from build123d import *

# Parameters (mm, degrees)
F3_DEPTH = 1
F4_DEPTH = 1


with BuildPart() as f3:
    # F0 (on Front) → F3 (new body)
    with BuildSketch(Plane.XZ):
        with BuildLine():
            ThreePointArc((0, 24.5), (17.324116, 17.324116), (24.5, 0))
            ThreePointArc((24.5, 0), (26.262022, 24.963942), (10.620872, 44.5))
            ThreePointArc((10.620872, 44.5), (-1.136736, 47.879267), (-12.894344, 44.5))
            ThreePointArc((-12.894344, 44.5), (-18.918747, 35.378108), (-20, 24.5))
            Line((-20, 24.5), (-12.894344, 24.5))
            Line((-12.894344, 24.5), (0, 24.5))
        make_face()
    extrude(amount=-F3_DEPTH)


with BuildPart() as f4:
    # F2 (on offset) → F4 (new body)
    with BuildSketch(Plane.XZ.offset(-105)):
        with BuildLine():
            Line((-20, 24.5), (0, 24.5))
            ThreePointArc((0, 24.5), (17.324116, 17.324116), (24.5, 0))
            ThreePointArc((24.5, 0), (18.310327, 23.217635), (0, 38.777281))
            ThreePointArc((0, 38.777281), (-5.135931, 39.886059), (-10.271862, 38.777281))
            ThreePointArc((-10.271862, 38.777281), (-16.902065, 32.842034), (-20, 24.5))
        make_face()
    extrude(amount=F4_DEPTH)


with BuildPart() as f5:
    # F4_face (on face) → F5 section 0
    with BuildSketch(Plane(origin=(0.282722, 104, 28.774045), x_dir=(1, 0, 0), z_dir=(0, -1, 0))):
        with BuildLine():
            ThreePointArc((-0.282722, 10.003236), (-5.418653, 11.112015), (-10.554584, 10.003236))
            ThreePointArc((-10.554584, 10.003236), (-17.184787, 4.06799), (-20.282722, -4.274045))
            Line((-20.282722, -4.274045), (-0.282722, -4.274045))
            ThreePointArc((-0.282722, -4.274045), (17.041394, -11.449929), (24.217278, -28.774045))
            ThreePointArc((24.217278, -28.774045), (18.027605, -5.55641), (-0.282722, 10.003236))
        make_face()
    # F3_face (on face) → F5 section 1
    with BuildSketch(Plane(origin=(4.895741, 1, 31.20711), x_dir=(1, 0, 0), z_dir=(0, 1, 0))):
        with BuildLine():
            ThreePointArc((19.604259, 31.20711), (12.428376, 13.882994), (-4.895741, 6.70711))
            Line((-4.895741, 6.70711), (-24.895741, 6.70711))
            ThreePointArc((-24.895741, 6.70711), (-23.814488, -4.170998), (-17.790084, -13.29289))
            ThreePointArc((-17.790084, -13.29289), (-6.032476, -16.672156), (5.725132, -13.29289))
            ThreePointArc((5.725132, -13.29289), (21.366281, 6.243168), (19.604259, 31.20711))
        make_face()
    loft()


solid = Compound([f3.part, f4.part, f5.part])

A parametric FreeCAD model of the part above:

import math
import FreeCAD as App
import Part
import Sketcher

doc = App.newDocument("Part")
params = doc.addObject("Spreadsheet::Sheet", "Params")
for row, (alias, value) in enumerate([
    ("sketch1_radius", "24.5 mm"),
    ("sketch1_width", "20 mm"),
    ("pad1_length", "1 mm"),
    ("sketch2_radius", "24.5 mm"),
    ("sketch2_width", "20 mm"),
    ("pad2_length", "1 mm"),
    ("sketch3_radius", "24.5 mm"),
    ("sketch3_width", "20 mm"),
    ("sketch4_radius", "24.499999 mm"),
    ("sketch4_width", "20 mm"),
], start=1):
    params.set(f"A{row}", alias)
    params.set(f"B{row}", "=" + value)
    params.setAlias(f"B{row}", alias)

body = doc.addObject("PartDesign::Body", "Body")

# Sketch on XZ plane
sketch1 = doc.addObject("Sketcher::SketchObject", "Sketch")
body.addObject(sketch1)
sketch1.AttachmentSupport = (doc.XZ_Plane, [""])
sketch1.MapMode = "FlatFace"
sketch1.addGeometry(Part.ArcOfCircle(Part.Circle(App.Vector(0, 0, 0), App.Vector(0, 0, 1), 25), math.radians(0), math.radians(90)), False)
sketch1.addGeometry(Part.ArcOfCircle(Part.Circle(App.Vector(-7, 15, 0), App.Vector(0, 0, 1), 34), math.radians(-25), math.radians(60)), False)
sketch1.addGeometry(Part.ArcOfCircle(Part.Circle(App.Vector(-1, 26, 0), App.Vector(0, 0, 1), 22), math.radians(58), math.radians(122)), False)
sketch1.addGeometry(Part.ArcOfCircle(Part.Circle(App.Vector(3, 28, 0), App.Vector(0, 0, 1), 23), math.radians(133), math.radians(188)), False)
sketch1.addGeometry(Part.LineSegment(App.Vector(-20, 24, 0), App.Vector(0, 24, 0)), False)
sketch1.addConstraint(Sketcher.Constraint("Coincident", 0, 1, 1, 1))
sketch1.addConstraint(Sketcher.Constraint("Coincident", 1, 2, 2, 1))
sketch1.addConstraint(Sketcher.Constraint("Coincident", 2, 2, 3, 1))
sketch1.addConstraint(Sketcher.Constraint("Coincident", 3, 2, 4, 1))
sketch1.addConstraint(Sketcher.Constraint("Tangent", 4, 2, 0, 2))
sketch1.addConstraint(Sketcher.Constraint("Horizontal", 4))
sketch1.addConstraint(Sketcher.Constraint("Coincident", 0, 3, -1, 1))
sketch1.addConstraint(Sketcher.Constraint("PointOnObject", 0, 1, -1))
sketch1.addConstraint(Sketcher.Constraint("Horizontal", 1, 2, 2, 2))
sketch1.addConstraint(Sketcher.Constraint("Radius", 0, 24.5))
sketch1.addConstraint(Sketcher.Constraint("DistanceX", 4, 1, 4, 2, 20.0))
sketch1.addConstraint(Sketcher.Constraint("DistanceY", 3, 2, 2, 2, 20.0))
sketch1.addConstraint(Sketcher.Constraint("Radius", 1, 34.35566))
sketch1.addConstraint(Sketcher.Constraint("Radius", 2, 22.143973))
sketch1.addConstraint(Sketcher.Constraint("Radius", 3, 22.780324))
sketch1.addConstraint(Sketcher.Constraint("DistanceX", 2, 2, 3, 3, 15.4414))
sketch1.addConstraint(Sketcher.Constraint("DistanceY", -1, 1, 1, 3, 14.734721))
sketch1.setExpression("Constraints[9]", "Params.sketch1_radius")
sketch1.setExpression("Constraints[10]", "Params.sketch1_width")
pad1 = doc.addObject("PartDesign::Pad", "Pad")
body.addObject(pad1)
pad1.Profile = sketch1
pad1.setExpression("Length", "Params.pad1_length")
pad1.Reversed = True
body2 = doc.addObject("PartDesign::Body", "Body001")

# Sketch on XZ plane
sketch2 = doc.addObject("Sketcher::SketchObject", "Sketch001")
body2.addObject(sketch2)
sketch2.AttachmentSupport = (doc.getObject("XZ_Plane001"), [""])
sketch2.MapMode = "FlatFace"
sketch2.AttachmentOffset = App.Placement(App.Vector(0, 0, -105), App.Rotation())
sketch2.addGeometry(Part.LineSegment(App.Vector(-20, 24, 0), App.Vector(0, 24, 0)), False)
sketch2.addGeometry(Part.ArcOfCircle(Part.Circle(App.Vector(0, 0, 0), App.Vector(0, 0, 1), 25), math.radians(0), math.radians(90)), False)
sketch2.addGeometry(Part.ArcOfCircle(Part.Circle(App.Vector(-16, 2, 0), App.Vector(0, 0, 1), 40), math.radians(-2), math.radians(67)), False)
sketch2.addGeometry(Part.ArcOfCircle(Part.Circle(App.Vector(-5, 27, 0), App.Vector(0, 0, 1), 12), math.radians(66), math.radians(114)), False)
sketch2.addGeometry(Part.ArcOfCircle(Part.Circle(App.Vector(-2, 22, 0), App.Vector(0, 0, 1), 19), math.radians(118), math.radians(174)), False)
sketch2.addConstraint(Sketcher.Constraint("Tangent", 0, 2, 1, 2))
sketch2.addConstraint(Sketcher.Constraint("Coincident", 1, 1, 2, 1))
sketch2.addConstraint(Sketcher.Constraint("Coincident", 2, 2, 3, 1))
sketch2.addConstraint(Sketcher.Constraint("Coincident", 3, 2, 4, 1))
sketch2.addConstraint(Sketcher.Constraint("Coincident", 4, 2, 0, 1))
sketch2.addConstraint(Sketcher.Constraint("Horizontal", 0))
sketch2.addConstraint(Sketcher.Constraint("Coincident", 1, 3, -1, 1))
sketch2.addConstraint(Sketcher.Constraint("PointOnObject", 1, 1, -1))
sketch2.addConstraint(Sketcher.Constraint("PointOnObject", 2, 2, -2))
sketch2.addConstraint(Sketcher.Constraint("Horizontal", 2, 2, 3, 2))
sketch2.addConstraint(Sketcher.Constraint("Radius", 1, 24.5))
sketch2.addConstraint(Sketcher.Constraint("DistanceX", 0, 1, 0, 2, 20.0))
sketch2.addConstraint(Sketcher.Constraint("Radius", 4, 18.526298))
sketch2.addConstraint(Sketcher.Constraint("Radius", 3, 12.44937))
sketch2.addConstraint(Sketcher.Constraint("Radius", 2, 40.270834))
sketch2.addConstraint(Sketcher.Constraint("DistanceY", 2, 3, 3, 3, 25.729098))
sketch2.addConstraint(Sketcher.Constraint("DistanceY", -1, 1, 2, 3, 1.70759))
sketch2.setExpression("Constraints[10]", "Params.sketch2_radius")
sketch2.setExpression("Constraints[11]", "Params.sketch2_width")
pad2 = doc.addObject("PartDesign::Pad", "Pad001")
body2.addObject(pad2)
pad2.Profile = sketch2
pad2.setExpression("Length", "Params.pad2_length")
body3 = doc.addObject("PartDesign::Body", "Body002")

# Sketch on XZ plane
sketch3 = doc.addObject("Sketcher::SketchObject", "Sketch002")
body3.addObject(sketch3)
sketch3.AttachmentSupport = (doc.getObject("XZ_Plane002"), [""])
sketch3.MapMode = "FlatFace"
sketch3.AttachmentOffset = App.Placement(App.Vector(0, 0, -104), App.Rotation())
sketch3.addGeometry(Part.ArcOfCircle(Part.Circle(App.Vector(-5, 27, 0), App.Vector(0, 0, 1), 12), math.radians(66), math.radians(114)), False)
sketch3.addGeometry(Part.ArcOfCircle(Part.Circle(App.Vector(-2, 22, 0), App.Vector(0, 0, 1), 19), math.radians(118), math.radians(174)), False)
sketch3.addGeometry(Part.LineSegment(App.Vector(-20, 24, 0), App.Vector(0, 24, 0)), False)
sketch3.addGeometry(Part.ArcOfCircle(Part.Circle(App.Vector(0, 0, 0), App.Vector(0, 0, 1), 25), math.radians(0), math.radians(90)), False)
sketch3.addGeometry(Part.ArcOfCircle(Part.Circle(App.Vector(-16, 2, 0), App.Vector(0, 0, 1), 40), math.radians(-2), math.radians(67)), False)
sketch3.addConstraint(Sketcher.Constraint("Coincident", 0, 2, 1, 1))
sketch3.addConstraint(Sketcher.Constraint("Coincident", 1, 2, 2, 1))
sketch3.addConstraint(Sketcher.Constraint("Tangent", 2, 2, 3, 2))
sketch3.addConstraint(Sketcher.Constraint("Coincident", 3, 1, 4, 1))
sketch3.addConstraint(Sketcher.Constraint("Coincident", 4, 2, 0, 1))
sketch3.addConstraint(Sketcher.Constraint("Horizontal", 2))
sketch3.addConstraint(Sketcher.Constraint("Coincident", 3, 3, -1, 1))
sketch3.addConstraint(Sketcher.Constraint("PointOnObject", 3, 1, -1))
sketch3.addConstraint(Sketcher.Constraint("PointOnObject", 4, 2, -2))
sketch3.addConstraint(Sketcher.Constraint("Horizontal", 0, 2, 4, 2))
sketch3.addConstraint(Sketcher.Constraint("Radius", 3, 24.5))
sketch3.addConstraint(Sketcher.Constraint("DistanceX", 2, 1, 2, 2, 20.0))
sketch3.addConstraint(Sketcher.Constraint("Radius", 0, 12.44936))
sketch3.addConstraint(Sketcher.Constraint("Radius", 1, 18.526294))
sketch3.addConstraint(Sketcher.Constraint("Radius", 4, 40.270834))
sketch3.addConstraint(Sketcher.Constraint("DistanceY", -1, 1, 0, 3, 27.4367))
sketch3.addConstraint(Sketcher.Constraint("DistanceX", 0, 3, -1, 1, 5.135931))
sketch3.setExpression("Constraints[10]", "Params.sketch3_radius")
sketch3.setExpression("Constraints[11]", "Params.sketch3_width")

# Sketch on XZ plane
sketch4 = doc.addObject("Sketcher::SketchObject", "Sketch003")
body3.addObject(sketch4)
sketch4.AttachmentSupport = (doc.getObject("XZ_Plane002"), [""])
sketch4.MapMode = "FlatFace"
sketch4.AttachmentOffset = App.Placement(App.Vector(0, 0, -1), App.Rotation())
sketch4.addGeometry(Part.ArcOfCircle(Part.Circle(App.Vector(0, 0, 0), App.Vector(0, 0, 1), 24), math.radians(0), math.radians(90)), False)
sketch4.addGeometry(Part.LineSegment(App.Vector(0, 24, 0), App.Vector(-20, 24, 0)), False)
sketch4.addGeometry(Part.ArcOfCircle(Part.Circle(App.Vector(3, 28, 0), App.Vector(0, 0, 1), 23), math.radians(133), math.radians(188)), False)
sketch4.addGeometry(Part.ArcOfCircle(Part.Circle(App.Vector(-1, 26, 0), App.Vector(0, 0, 1), 22), math.radians(58), math.radians(122)), False)
sketch4.addGeometry(Part.ArcOfCircle(Part.Circle(App.Vector(-7, 15, 0), App.Vector(0, 0, 1), 34), math.radians(-25), math.radians(60)), False)
sketch4.addConstraint(Sketcher.Constraint("Tangent", 0, 2, 1, 1))
sketch4.addConstraint(Sketcher.Constraint("Coincident", 1, 2, 2, 2))
sketch4.addConstraint(Sketcher.Constraint("Coincident", 2, 1, 3, 2))
sketch4.addConstraint(Sketcher.Constraint("Coincident", 3, 1, 4, 2))
sketch4.addConstraint(Sketcher.Constraint("Coincident", 4, 1, 0, 1))
sketch4.addConstraint(Sketcher.Constraint("Horizontal", 1))
sketch4.addConstraint(Sketcher.Constraint("Coincident", 0, 3, -1, 1))
sketch4.addConstraint(Sketcher.Constraint("PointOnObject", 4, 1, -1))
sketch4.addConstraint(Sketcher.Constraint("Horizontal", 2, 1, 3, 1))
sketch4.addConstraint(Sketcher.Constraint("Radius", 0, 24.499999))
sketch4.addConstraint(Sketcher.Constraint("DistanceX", 1, 2, 1, 1, 20.0))
sketch4.addConstraint(Sketcher.Constraint("DistanceY", 1, 2, 2, 1, 20.0))
sketch4.addConstraint(Sketcher.Constraint("Radius", 2, 22.780321))
sketch4.addConstraint(Sketcher.Constraint("Radius", 3, 22.143978))
sketch4.addConstraint(Sketcher.Constraint("Radius", 4, 34.355661))
sketch4.addConstraint(Sketcher.Constraint("DistanceY", -1, 1, 4, 3, 14.734721))
sketch4.addConstraint(Sketcher.Constraint("DistanceX", 0, 3, 2, 3, 2.547052))
sketch4.setExpression("Constraints[9]", "Params.sketch4_radius")
sketch4.setExpression("Constraints[10]", "Params.sketch4_width")

additiveloft = doc.addObject("PartDesign::AdditiveLoft", "AdditiveLoft")
body3.addObject(additiveloft)
additiveloft.Profile = sketch3
additiveloft.Sections = [sketch4]

doc.recompute()
